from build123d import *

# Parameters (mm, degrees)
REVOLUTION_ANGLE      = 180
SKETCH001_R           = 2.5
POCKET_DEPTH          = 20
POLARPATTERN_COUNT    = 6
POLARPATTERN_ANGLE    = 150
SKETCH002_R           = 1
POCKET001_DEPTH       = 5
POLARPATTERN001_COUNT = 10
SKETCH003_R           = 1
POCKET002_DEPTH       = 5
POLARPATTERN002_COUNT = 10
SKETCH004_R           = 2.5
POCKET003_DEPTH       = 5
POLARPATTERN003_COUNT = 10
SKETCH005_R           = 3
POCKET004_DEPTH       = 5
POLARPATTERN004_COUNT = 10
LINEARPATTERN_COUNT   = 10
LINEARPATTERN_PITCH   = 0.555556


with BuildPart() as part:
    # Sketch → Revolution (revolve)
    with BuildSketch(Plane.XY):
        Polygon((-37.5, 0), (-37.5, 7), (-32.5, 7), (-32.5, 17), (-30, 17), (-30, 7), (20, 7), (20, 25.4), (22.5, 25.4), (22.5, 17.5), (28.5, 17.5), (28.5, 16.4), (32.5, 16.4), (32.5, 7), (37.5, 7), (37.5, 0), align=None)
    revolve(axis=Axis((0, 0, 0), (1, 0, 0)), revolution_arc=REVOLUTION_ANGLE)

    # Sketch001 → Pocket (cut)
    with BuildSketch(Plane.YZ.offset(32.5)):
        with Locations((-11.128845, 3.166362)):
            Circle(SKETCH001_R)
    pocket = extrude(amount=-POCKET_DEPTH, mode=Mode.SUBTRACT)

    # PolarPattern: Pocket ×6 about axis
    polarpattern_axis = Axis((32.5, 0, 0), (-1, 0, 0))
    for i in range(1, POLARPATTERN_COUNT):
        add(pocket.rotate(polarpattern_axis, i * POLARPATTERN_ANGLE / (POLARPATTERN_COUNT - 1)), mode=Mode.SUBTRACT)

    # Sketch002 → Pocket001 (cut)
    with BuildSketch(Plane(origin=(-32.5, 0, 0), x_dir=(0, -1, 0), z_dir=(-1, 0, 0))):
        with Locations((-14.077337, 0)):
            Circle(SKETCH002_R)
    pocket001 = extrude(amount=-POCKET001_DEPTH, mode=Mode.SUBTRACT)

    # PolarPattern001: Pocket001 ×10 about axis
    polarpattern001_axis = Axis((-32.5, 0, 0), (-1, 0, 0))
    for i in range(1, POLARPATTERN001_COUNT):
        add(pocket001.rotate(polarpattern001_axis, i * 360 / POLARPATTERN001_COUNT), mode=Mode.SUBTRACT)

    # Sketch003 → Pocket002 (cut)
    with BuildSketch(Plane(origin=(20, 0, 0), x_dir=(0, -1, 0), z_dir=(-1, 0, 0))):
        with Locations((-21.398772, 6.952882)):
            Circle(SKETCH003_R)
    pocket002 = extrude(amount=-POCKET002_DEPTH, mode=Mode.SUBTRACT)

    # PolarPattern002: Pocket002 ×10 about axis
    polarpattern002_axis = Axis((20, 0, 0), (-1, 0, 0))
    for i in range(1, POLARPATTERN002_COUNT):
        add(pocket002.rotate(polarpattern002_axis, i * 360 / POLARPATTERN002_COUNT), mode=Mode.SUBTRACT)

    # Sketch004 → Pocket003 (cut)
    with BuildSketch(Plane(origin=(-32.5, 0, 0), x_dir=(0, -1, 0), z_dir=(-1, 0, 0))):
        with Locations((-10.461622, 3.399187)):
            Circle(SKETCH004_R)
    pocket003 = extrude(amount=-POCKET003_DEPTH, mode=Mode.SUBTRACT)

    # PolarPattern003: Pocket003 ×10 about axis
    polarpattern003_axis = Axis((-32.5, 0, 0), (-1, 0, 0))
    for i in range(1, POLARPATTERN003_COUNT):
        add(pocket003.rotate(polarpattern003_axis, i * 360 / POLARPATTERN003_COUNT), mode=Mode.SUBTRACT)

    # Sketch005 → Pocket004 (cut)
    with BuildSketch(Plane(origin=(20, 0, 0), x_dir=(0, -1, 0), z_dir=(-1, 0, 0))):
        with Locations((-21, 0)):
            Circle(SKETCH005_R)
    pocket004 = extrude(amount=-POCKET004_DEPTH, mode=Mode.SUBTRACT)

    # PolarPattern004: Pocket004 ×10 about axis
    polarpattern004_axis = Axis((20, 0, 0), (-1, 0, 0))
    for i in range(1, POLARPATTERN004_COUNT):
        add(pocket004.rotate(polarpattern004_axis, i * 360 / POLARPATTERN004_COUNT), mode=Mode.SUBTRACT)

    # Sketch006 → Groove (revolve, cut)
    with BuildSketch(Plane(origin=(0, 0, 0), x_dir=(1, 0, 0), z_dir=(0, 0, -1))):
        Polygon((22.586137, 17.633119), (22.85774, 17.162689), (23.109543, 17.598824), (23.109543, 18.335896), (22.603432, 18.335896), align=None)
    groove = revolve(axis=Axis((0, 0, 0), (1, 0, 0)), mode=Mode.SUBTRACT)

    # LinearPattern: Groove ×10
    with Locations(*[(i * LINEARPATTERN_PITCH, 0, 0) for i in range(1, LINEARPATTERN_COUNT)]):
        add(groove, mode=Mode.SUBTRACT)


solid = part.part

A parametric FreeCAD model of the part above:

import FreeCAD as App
import Part
import Sketcher
Q = App.Units.Quantity

doc = App.newDocument("Part")
body = doc.addObject("PartDesign::Body", "Body")

sketch1 = body.newObject("Sketcher::SketchObject", "Sketch")
sketch1.AttachmentSupport = (doc.getObject("XY_Plane"), [""])
sketch1.MapMode = "FlatFace"
sketch1.addGeometry(Part.LineSegment(App.Vector(-37.5, 7, 0), App.Vector(-37.5, 0, 0)), False)
sketch1.addGeometry(Part.LineSegment(App.Vector(-37.5, 0, 0), App.Vector(37.5, 0, 0)), False)
sketch1.addGeometry(Part.LineSegment(App.Vector(37.5, 0, 0), App.Vector(37.5, 7, 0)), False)
sketch1.addGeometry(Part.LineSegment(App.Vector(37.5, 7, 0), App.Vector(32.5, 7, 0)), False)
sketch1.addGeometry(Part.LineSegment(App.Vector(32.5, 7, 0), App.Vector(32.5, 16.4, 0)), False)
sketch1.addGeometry(Part.LineSegment(App.Vector(32.5, 16.4, 0), App.Vector(28.5, 16.4, 0)), False)
sketch1.addGeometry(Part.LineSegment(App.Vector(28.5, 16.4, 0), App.Vector(28.5, 17.5, 0)), False)
sketch1.addGeometry(Part.LineSegment(App.Vector(28.5, 17.5, 0), App.Vector(22.5, 17.5, 0)), False)
sketch1.addGeometry(Part.LineSegment(App.Vector(22.5, 17.5, 0), App.Vector(22.5, 25.4, 0)), False)
sketch1.addGeometry(Part.LineSegment(App.Vector(22.5, 25.4, 0), App.Vector(20, 25.4, 0)), False)
sketch1.addGeometry(Part.LineSegment(App.Vector(20, 25.4, 0), App.Vector(20, 7, 0)), False)
sketch1.addGeometry(Part.LineSegment(App.Vector(20, 7, 0), App.Vector(-30, 7, 0)), False)
sketch1.addGeometry(Part.LineSegment(App.Vector(-30, 7, 0), App.Vector(-30, 17, 0)), False)
sketch1.addGeometry(Part.LineSegment(App.Vector(-30, 17, 0), App.Vector(-32.5, 17, 0)), False)
sketch1.addGeometry(Part.LineSegment(App.Vector(-32.5, 17, 0), App.Vector(-32.5, 7, 0)), False)
sketch1.addGeometry(Part.LineSegment(App.Vector(-32.5, 7, 0), App.Vector(-37.5, 7, 0)), False)
sketch1.addConstraint(Sketcher.Constraint("Coincident", 0, 2, 1, 1))
sketch1.addConstraint(Sketcher.Constraint("Coincident", 1, 2, 2, 1))
sketch1.addConstraint(Sketcher.Constraint("Coincident", 2, 2, 3, 1))
sketch1.addConstraint(Sketcher.Constraint("Coincident", 3, 2, 4, 1))
sketch1.addConstraint(Sketcher.Constraint("Coincident", 4, 2, 5, 1))
sketch1.addConstraint(Sketcher.Constraint("Coincident", 5, 2, 6, 1))
sketch1.addConstraint(Sketcher.Constraint("Coincident", 6, 2, 7, 1))
sketch1.addConstraint(Sketcher.Constraint("Coincident", 7, 2, 8, 1))
sketch1.addConstraint(Sketcher.Constraint("Coincident", 8, 2, 9, 1))
sketch1.addConstraint(Sketcher.Constraint("Coincident", 9, 2, 10, 1))
sketch1.addConstraint(Sketcher.Constraint("Coincident", 10, 2, 11, 1))
sketch1.addConstraint(Sketcher.Constraint("Coincident", 11, 2, 12, 1))
sketch1.addConstraint(Sketcher.Constraint("Coincident", 12, 2, 13, 1))
sketch1.addConstraint(Sketcher.Constraint("Coincident", 13, 2, 14, 1))
sketch1.addConstraint(Sketcher.Constraint("Coincident", 14, 2, 15, 1))
sketch1.addConstraint(Sketcher.Constraint("Coincident", 15, 2, 0, 1))
sketch1.addConstraint(Sketcher.Constraint("Vertical", 0))
sketch1.addConstraint(Sketcher.Constraint("Horizontal", 1))
sketch1.addConstraint(Sketcher.Constraint("Vertical", 2))
sketch1.addConstraint(Sketcher.Constraint("Horizontal", 3))
sketch1.addConstraint(Sketcher.Constraint("Vertical", 4))
sketch1.addConstraint(Sketcher.Constraint("Horizontal", 5))
sketch1.addConstraint(Sketcher.Constraint("Vertical", 6))
sketch1.addConstraint(Sketcher.Constraint("Horizontal", 7))
sketch1.addConstraint(Sketcher.Constraint("Vertical", 8))
sketch1.addConstraint(Sketcher.Constraint("Horizontal", 9))
sketch1.addConstraint(Sketcher.Constraint("Vertical", 10))
sketch1.addConstraint(Sketcher.Constraint("Horizontal", 11))
sketch1.addConstraint(Sketcher.Constraint("Vertical", 12))
sketch1.addConstraint(Sketcher.Constraint("Horizontal", 13))
sketch1.addConstraint(Sketcher.Constraint("Vertical", 14))
sketch1.addConstraint(Sketcher.Constraint("Horizontal", 15))
sketch1.addConstraint(Sketcher.Constraint("Symmetric", 0, 2, 1, 2, -1, 1))
sketch1.addConstraint(Sketcher.Constraint("Symmetric", 3, 2, 14, 2, -2))
sketch1.addConstraint(Sketcher.Constraint("Horizontal", 3, 2, 10, 2))
sketch1.addConstraint(Sketcher.Constraint("Equal", 9, 13))
sketch1.addConstraint(Sketcher.Constraint("DistanceX", 1, 1, 1, 2, 75.0))
sketch1.addConstraint(Sketcher.Constraint("DistanceX", 3, 2, 3, 1, 5.0))
sketch1.addConstraint(Sketcher.Constraint("DistanceX", 5, 2, 5, 1, 4.0))
sketch1.addConstraint(Sketcher.Constraint("DistanceX", 7, 2, 7, 1, 6.0))
sketch1.addConstraint(Sketcher.Constraint("DistanceX", 11, 2, 11, 1, 50.0))
sketch1.addConstraint(Sketcher.Constraint("DistanceY", 0, 2, 0, 1, 7.0))
sketch1.addConstraint(Sketcher.Constraint("DistanceY", 12, 1, 12, 2, 10.0))
sketch1.addConstraint(Sketcher.Constraint("DistanceY", 4, 1, 4, 2, 9.4))
sketch1.addConstraint(Sketcher.Constraint("DistanceY", 6, 1, 6, 2, 1.1))
sketch1.addConstraint(Sketcher.Constraint("DistanceY", 8, 1, 8, 2, 7.9))
revolution = body.newObject("PartDesign::Revolution", "Revolution")
revolution.Profile = sketch1
revolution.ReferenceAxis = (sketch1, ["H_Axis"])
revolution.Angle = 180

sketch2 = body.newObject("Sketcher::SketchObject", "Sketch001")
sketch2.AttachmentSupport = (doc.getObject("YZ_Plane"), [""])
sketch2.MapMode = "FlatFace"
sketch2.AttachmentOffset = App.Placement(App.Vector(0, 0, 32.5), App.Rotation())
sketch2.addGeometry(Part.Circle(App.Vector(-11.1, 3.2, 0), App.Vector(0, 0, 1), 2.5), False)
sketch2.addConstraint(Sketcher.Constraint("Diameter", 0, 5.0))
sketch2.addConstraint(Sketcher.Constraint("DistanceY", -1, 1, 0, 3, 3.166362))
sketch2.addConstraint(Sketcher.Constraint("DistanceX", 0, 3, -1, 1, 11.128845))
pocket1 = body.newObject("PartDesign::Pocket", "Pocket")
pocket1.Profile = sketch2
pocket1.Length = 20
doc.recompute()

polarpattern = body.newObject("PartDesign::PolarPattern", "PolarPattern")
polarpattern.Originals = [pocket1]
polarpattern.Axis = (doc.getObject("X_Axis"), [""])
polarpattern.Angle = 150
polarpattern.Occurrences = 6
polarpattern.Reversed = True
body.Tip = polarpattern

sketch3 = body.newObject("Sketcher::SketchObject", "Sketch002")
sketch3.AttachmentSupport = (doc.getObject("YZ_Plane"), [""])
sketch3.MapMode = "FlatFace"
sketch3.AttachmentOffset = App.Placement(App.Vector(0, 0, -32.5), App.Rotation())
sketch3.addGeometry(Part.Circle(App.Vector(14.1, 0, 0), App.Vector(0, 0, 1), 1), False)
sketch3.addConstraint(Sketcher.Constraint("PointOnObject", 0, 3, -1))
sketch3.addConstraint(Sketcher.Constraint("Diameter", 0, 2.0))
sketch3.addConstraint(Sketcher.Constraint("DistanceX", -1, 1, 0, 3, 14.077337))
pocket2 = body.newObject("PartDesign::Pocket", "Pocket001")
pocket2.Profile = sketch3
pocket2.Length = 5
pocket2.Reversed = True
doc.recompute()

polarpattern2 = body.newObject("PartDesign::PolarPattern", "PolarPattern001")
polarpattern2.Originals = [pocket2]
polarpattern2.Axis = (doc.getObject("X_Axis"), [""])
polarpattern2.Angle = 360
polarpattern2.Occurrences = 10
body.Tip = polarpattern2

sketch4 = body.newObject("Sketcher::SketchObject", "Sketch003")
sketch4.AttachmentSupport = (doc.getObject("YZ_Plane"), [""])
sketch4.MapMode = "FlatFace"
sketch4.AttachmentOffset = App.Placement(App.Vector(0, 0, 20), App.Rotation())
sketch4.addGeometry(Part.Circle(App.Vector(21.4, 7, 0), App.Vector(0, 0, 1), 1), False)
sketch4.addConstraint(Sketcher.Constraint("Diameter", 0, 2.0))
sketch4.addConstraint(Sketcher.Constraint("DistanceY", -1, 1, 0, 3, 6.952882))
sketch4.addConstraint(Sketcher.Constraint("DistanceX", -1, 1, 0, 3, 21.398772))
pocket3 = body.newObject("PartDesign::Pocket", "Pocket002")
pocket3.Profile = sketch4
pocket3.Length = 5
pocket3.Reversed = True
doc.recompute()

polarpattern3 = body.newObject("PartDesign::PolarPattern", "PolarPattern002")
polarpattern3.Originals = [pocket3]
polarpattern3.Axis = (doc.getObject("X_Axis"), [""])
polarpattern3.Angle = 360
polarpattern3.Occurrences = 10
body.Tip = polarpattern3

sketch5 = body.newObject("Sketcher::SketchObject", "Sketch004")
sketch5.AttachmentSupport = (doc.getObject("YZ_Plane"), [""])
sketch5.MapMode = "FlatFace"
sketch5.AttachmentOffset = App.Placement(App.Vector(0, 0, -32.5), App.Rotation())
sketch5.addGeometry(Part.Circle(App.Vector(10.5, 3.4, 0), App.Vector(0, 0, 1), 2.5), False)
sketch5.addConstraint(Sketcher.Constraint("Diameter", 0, 5.0))
sketch5.addConstraint(Sketcher.Constraint("DistanceX", -1, 1, 0, 3, 10.461622))
sketch5.addConstraint(Sketcher.Constraint("DistanceY", -1, 1, 0, 3, 3.399187))
pocket4 = body.newObject("PartDesign::Pocket", "Pocket003")
pocket4.Profile = sketch5
pocket4.Length = 5
pocket4.Reversed = True
doc.recompute()

polarpattern4 = body.newObject("PartDesign::PolarPattern", "PolarPattern003")
polarpattern4.Originals = [pocket4]
polarpattern4.Axis = (doc.getObject("X_Axis"), [""])
polarpattern4.Angle = 360
polarpattern4.Occurrences = 10
body.Tip = polarpattern4

sketch6 = body.newObject("Sketcher::SketchObject", "Sketch005")
sketch6.AttachmentSupport = (doc.getObject("YZ_Plane"), [""])
sketch6.MapMode = "FlatFace"
sketch6.AttachmentOffset = App.Placement(App.Vector(0, 0, 20), App.Rotation())
sketch6.addGeometry(Part.Circle(App.Vector(21, 0, 0), App.Vector(0, 0, 1), 3), False)
sketch6.addConstraint(Sketcher.Constraint("PointOnObject", 0, 3, -1))
sketch6.addConstraint(Sketcher.Constraint("Diameter", 0, 6.0))
sketch6.addConstraint(Sketcher.Constraint("DistanceX", -1, 1, 0, 3, 21.0))
pocket5 = body.newObject("PartDesign::Pocket", "Pocket004")
pocket5.Profile = sketch6
pocket5.Length = 5
pocket5.Reversed = True
doc.recompute()

polarpattern5 = body.newObject("PartDesign::PolarPattern", "PolarPattern004")
polarpattern5.Originals = [pocket5]
polarpattern5.Axis = (doc.getObject("X_Axis"), [""])
polarpattern5.Angle = 360
polarpattern5.Occurrences = 10
body.Tip = polarpattern5

sketch7 = body.newObject("Sketcher::SketchObject", "Sketch006")
sketch7.AttachmentSupport = (doc.getObject("XY_Plane"), [""])
sketch7.MapMode = "FlatFace"
sketch7.addGeometry(Part.LineSegment(App.Vector(22.6, -17.6, 0), App.Vector(22.9, -17.2, 0)), False)
sketch7.addGeometry(Part.LineSegment(App.Vector(22.9, -17.2, 0), App.Vector(23.1, -17.6, 0)), False)
sketch7.addGeometry(Part.LineSegment(App.Vector(23.1, -17.6, 0), App.Vector(23.1, -18.3, 0)), False)
sketch7.addGeometry(Part.LineSegment(App.Vector(23.1, -18.3, 0), App.Vector(22.6, -18.3, 0)), False)
sketch7.addGeometry(Part.LineSegment(App.Vector(22.6, -18.3, 0), App.Vector(22.6, -17.6, 0)), False)
sketch7.addConstraint(Sketcher.Constraint("Coincident", 0, 2, 1, 1))
sketch7.addConstraint(Sketcher.Constraint("Coincident", 1, 2, 2, 1))
sketch7.addConstraint(Sketcher.Constraint("Coincident", 2, 2, 3, 1))
sketch7.addConstraint(Sketcher.Constraint("Coincident", 3, 2, 4, 1))
sketch7.addConstraint(Sketcher.Constraint("Coincident", 4, 2, 0, 1))
sketch7.addConstraint(Sketcher.Constraint("Vertical", 2))
sketch7.addConstraint(Sketcher.Constraint("Horizontal", 3))
sketch7.addConstraint(Sketcher.Constraint("Angle", 0, Q("59.99999 deg")))
sketch7.addConstraint(Sketcher.Constraint("DistanceX", 3, 2, 3, 1, 0.506111))
sketch7.addConstraint(Sketcher.Constraint("Distance", 4, 0.70299))
sketch7.addConstraint(Sketcher.Constraint("DistanceY", 2, 2, 2, 1, 0.737072))
sketch7.addConstraint(Sketcher.Constraint("DistanceX", -1, 1, 0, 2, 22.85774))
sketch7.addConstraint(Sketcher.Constraint("DistanceY", 0, 2, -1, 1, 17.162689))
sketch7.addConstraint(Sketcher.Constraint("DistanceY", 4, 2, -1, 1, 17.633119))
sketch7.addConstraint(Sketcher.Constraint("Distance", 1, 0.503605))
groove = body.newObject("PartDesign::Groove", "Groove")
groove.Profile = sketch7
groove.ReferenceAxis = (sketch7, ["H_Axis"])
groove.Angle = 360
doc.recompute()

linearpattern = body.newObject("PartDesign::LinearPattern", "LinearPattern")
linearpattern.Originals = [groove]
linearpattern.Direction = (doc.getObject("X_Axis"), [""])
linearpattern.Mode = "offset"
linearpattern.Offset = 0.555556
linearpattern.Occurrences = 10
body.Tip = linearpattern

doc.recompute()
